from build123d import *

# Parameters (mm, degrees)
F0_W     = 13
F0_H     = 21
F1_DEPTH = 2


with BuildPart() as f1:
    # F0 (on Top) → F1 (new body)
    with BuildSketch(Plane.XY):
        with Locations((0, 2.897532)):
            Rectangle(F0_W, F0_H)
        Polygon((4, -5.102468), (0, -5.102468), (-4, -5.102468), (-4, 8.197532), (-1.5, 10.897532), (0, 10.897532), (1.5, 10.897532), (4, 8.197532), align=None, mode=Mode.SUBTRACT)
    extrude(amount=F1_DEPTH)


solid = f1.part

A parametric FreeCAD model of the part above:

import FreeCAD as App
import Part
import Sketcher

V = App.Vector


def add_polygon(sketch, points):
    """Adds a closed chain of lines whose ends are joined by coincident constraints."""
    first, n = sketch.GeometryCount, len(points)
    for a, b in zip(points, points[1:] + points[:1]):
        sketch.addGeometry(Part.LineSegment(App.Vector(*a, 0), App.Vector(*b, 0)), False)
    for i in range(n):
        sketch.addConstraint(Sketcher.Constraint("Coincident", first + i, 2, first + (i + 1) % n, 1))

doc = App.newDocument("Part")
body = doc.addObject("PartDesign::Body", "Body")

# Sketch on XY plane
sketch1 = doc.addObject("Sketcher::SketchObject", "Sketch")
body.addObject(sketch1)
sketch1.AttachmentSupport = (doc.XY_Plane, [""])
sketch1.MapMode = "FlatFace"
add_polygon(sketch1, [(-6.5, 13.4), (-6.5, -7.6), (6.5, -7.6), (6.5, 13.4)])  # lines 0-3
add_polygon(sketch1, [(4, 8.2), (4, -5.1), (-4, -5.1), (-4, 8.2), (-1.5, 10.9), (1.5, 10.9)])  # lines 4-9
sketch1.addConstraint([
    Sketcher.Constraint("Vertical", 0),
    Sketcher.Constraint("Horizontal", 1),
    Sketcher.Constraint("Vertical", 2),
    Sketcher.Constraint("Horizontal", 3),
    Sketcher.Constraint("Vertical", 4),
    Sketcher.Constraint("Horizontal", 5),
    Sketcher.Constraint("Vertical", 6),
    Sketcher.Constraint("Horizontal", 8),
    Sketcher.Constraint("Symmetric", 6, 2, 9, 2, -2),
    Sketcher.Constraint("Equal", 7, 9),
    Sketcher.Constraint("DistanceX", 1, 1, 1, 2, 13.0),
    Sketcher.Constraint("DistanceX", 5, 2, 5, 1, 8.0),
    Sketcher.Constraint("DistanceX", 8, 1, 8, 2, 3.0),
    Sketcher.Constraint("DistanceY", 0, 2, 0, 1, 21.0),
    Sketcher.Constraint("DistanceY", 4, 2, 4, 1, 13.3),
    Sketcher.Constraint("DistanceX", 3, 2, 7, 2, 5.0),
    Sketcher.Constraint("DistanceY", 5, 2, 7, 2, 16.0),
    Sketcher.Constraint("DistanceY", 1, 2, 4, 2, 2.5),
    Sketcher.Constraint("DistanceY", 0, 2, -1, 1, 7.602468),
])
pad1 = doc.addObject("PartDesign::Pad", "Pad")
body.addObject(pad1)
pad1.Profile = sketch1
pad1.Length = 2

doc.recompute()
